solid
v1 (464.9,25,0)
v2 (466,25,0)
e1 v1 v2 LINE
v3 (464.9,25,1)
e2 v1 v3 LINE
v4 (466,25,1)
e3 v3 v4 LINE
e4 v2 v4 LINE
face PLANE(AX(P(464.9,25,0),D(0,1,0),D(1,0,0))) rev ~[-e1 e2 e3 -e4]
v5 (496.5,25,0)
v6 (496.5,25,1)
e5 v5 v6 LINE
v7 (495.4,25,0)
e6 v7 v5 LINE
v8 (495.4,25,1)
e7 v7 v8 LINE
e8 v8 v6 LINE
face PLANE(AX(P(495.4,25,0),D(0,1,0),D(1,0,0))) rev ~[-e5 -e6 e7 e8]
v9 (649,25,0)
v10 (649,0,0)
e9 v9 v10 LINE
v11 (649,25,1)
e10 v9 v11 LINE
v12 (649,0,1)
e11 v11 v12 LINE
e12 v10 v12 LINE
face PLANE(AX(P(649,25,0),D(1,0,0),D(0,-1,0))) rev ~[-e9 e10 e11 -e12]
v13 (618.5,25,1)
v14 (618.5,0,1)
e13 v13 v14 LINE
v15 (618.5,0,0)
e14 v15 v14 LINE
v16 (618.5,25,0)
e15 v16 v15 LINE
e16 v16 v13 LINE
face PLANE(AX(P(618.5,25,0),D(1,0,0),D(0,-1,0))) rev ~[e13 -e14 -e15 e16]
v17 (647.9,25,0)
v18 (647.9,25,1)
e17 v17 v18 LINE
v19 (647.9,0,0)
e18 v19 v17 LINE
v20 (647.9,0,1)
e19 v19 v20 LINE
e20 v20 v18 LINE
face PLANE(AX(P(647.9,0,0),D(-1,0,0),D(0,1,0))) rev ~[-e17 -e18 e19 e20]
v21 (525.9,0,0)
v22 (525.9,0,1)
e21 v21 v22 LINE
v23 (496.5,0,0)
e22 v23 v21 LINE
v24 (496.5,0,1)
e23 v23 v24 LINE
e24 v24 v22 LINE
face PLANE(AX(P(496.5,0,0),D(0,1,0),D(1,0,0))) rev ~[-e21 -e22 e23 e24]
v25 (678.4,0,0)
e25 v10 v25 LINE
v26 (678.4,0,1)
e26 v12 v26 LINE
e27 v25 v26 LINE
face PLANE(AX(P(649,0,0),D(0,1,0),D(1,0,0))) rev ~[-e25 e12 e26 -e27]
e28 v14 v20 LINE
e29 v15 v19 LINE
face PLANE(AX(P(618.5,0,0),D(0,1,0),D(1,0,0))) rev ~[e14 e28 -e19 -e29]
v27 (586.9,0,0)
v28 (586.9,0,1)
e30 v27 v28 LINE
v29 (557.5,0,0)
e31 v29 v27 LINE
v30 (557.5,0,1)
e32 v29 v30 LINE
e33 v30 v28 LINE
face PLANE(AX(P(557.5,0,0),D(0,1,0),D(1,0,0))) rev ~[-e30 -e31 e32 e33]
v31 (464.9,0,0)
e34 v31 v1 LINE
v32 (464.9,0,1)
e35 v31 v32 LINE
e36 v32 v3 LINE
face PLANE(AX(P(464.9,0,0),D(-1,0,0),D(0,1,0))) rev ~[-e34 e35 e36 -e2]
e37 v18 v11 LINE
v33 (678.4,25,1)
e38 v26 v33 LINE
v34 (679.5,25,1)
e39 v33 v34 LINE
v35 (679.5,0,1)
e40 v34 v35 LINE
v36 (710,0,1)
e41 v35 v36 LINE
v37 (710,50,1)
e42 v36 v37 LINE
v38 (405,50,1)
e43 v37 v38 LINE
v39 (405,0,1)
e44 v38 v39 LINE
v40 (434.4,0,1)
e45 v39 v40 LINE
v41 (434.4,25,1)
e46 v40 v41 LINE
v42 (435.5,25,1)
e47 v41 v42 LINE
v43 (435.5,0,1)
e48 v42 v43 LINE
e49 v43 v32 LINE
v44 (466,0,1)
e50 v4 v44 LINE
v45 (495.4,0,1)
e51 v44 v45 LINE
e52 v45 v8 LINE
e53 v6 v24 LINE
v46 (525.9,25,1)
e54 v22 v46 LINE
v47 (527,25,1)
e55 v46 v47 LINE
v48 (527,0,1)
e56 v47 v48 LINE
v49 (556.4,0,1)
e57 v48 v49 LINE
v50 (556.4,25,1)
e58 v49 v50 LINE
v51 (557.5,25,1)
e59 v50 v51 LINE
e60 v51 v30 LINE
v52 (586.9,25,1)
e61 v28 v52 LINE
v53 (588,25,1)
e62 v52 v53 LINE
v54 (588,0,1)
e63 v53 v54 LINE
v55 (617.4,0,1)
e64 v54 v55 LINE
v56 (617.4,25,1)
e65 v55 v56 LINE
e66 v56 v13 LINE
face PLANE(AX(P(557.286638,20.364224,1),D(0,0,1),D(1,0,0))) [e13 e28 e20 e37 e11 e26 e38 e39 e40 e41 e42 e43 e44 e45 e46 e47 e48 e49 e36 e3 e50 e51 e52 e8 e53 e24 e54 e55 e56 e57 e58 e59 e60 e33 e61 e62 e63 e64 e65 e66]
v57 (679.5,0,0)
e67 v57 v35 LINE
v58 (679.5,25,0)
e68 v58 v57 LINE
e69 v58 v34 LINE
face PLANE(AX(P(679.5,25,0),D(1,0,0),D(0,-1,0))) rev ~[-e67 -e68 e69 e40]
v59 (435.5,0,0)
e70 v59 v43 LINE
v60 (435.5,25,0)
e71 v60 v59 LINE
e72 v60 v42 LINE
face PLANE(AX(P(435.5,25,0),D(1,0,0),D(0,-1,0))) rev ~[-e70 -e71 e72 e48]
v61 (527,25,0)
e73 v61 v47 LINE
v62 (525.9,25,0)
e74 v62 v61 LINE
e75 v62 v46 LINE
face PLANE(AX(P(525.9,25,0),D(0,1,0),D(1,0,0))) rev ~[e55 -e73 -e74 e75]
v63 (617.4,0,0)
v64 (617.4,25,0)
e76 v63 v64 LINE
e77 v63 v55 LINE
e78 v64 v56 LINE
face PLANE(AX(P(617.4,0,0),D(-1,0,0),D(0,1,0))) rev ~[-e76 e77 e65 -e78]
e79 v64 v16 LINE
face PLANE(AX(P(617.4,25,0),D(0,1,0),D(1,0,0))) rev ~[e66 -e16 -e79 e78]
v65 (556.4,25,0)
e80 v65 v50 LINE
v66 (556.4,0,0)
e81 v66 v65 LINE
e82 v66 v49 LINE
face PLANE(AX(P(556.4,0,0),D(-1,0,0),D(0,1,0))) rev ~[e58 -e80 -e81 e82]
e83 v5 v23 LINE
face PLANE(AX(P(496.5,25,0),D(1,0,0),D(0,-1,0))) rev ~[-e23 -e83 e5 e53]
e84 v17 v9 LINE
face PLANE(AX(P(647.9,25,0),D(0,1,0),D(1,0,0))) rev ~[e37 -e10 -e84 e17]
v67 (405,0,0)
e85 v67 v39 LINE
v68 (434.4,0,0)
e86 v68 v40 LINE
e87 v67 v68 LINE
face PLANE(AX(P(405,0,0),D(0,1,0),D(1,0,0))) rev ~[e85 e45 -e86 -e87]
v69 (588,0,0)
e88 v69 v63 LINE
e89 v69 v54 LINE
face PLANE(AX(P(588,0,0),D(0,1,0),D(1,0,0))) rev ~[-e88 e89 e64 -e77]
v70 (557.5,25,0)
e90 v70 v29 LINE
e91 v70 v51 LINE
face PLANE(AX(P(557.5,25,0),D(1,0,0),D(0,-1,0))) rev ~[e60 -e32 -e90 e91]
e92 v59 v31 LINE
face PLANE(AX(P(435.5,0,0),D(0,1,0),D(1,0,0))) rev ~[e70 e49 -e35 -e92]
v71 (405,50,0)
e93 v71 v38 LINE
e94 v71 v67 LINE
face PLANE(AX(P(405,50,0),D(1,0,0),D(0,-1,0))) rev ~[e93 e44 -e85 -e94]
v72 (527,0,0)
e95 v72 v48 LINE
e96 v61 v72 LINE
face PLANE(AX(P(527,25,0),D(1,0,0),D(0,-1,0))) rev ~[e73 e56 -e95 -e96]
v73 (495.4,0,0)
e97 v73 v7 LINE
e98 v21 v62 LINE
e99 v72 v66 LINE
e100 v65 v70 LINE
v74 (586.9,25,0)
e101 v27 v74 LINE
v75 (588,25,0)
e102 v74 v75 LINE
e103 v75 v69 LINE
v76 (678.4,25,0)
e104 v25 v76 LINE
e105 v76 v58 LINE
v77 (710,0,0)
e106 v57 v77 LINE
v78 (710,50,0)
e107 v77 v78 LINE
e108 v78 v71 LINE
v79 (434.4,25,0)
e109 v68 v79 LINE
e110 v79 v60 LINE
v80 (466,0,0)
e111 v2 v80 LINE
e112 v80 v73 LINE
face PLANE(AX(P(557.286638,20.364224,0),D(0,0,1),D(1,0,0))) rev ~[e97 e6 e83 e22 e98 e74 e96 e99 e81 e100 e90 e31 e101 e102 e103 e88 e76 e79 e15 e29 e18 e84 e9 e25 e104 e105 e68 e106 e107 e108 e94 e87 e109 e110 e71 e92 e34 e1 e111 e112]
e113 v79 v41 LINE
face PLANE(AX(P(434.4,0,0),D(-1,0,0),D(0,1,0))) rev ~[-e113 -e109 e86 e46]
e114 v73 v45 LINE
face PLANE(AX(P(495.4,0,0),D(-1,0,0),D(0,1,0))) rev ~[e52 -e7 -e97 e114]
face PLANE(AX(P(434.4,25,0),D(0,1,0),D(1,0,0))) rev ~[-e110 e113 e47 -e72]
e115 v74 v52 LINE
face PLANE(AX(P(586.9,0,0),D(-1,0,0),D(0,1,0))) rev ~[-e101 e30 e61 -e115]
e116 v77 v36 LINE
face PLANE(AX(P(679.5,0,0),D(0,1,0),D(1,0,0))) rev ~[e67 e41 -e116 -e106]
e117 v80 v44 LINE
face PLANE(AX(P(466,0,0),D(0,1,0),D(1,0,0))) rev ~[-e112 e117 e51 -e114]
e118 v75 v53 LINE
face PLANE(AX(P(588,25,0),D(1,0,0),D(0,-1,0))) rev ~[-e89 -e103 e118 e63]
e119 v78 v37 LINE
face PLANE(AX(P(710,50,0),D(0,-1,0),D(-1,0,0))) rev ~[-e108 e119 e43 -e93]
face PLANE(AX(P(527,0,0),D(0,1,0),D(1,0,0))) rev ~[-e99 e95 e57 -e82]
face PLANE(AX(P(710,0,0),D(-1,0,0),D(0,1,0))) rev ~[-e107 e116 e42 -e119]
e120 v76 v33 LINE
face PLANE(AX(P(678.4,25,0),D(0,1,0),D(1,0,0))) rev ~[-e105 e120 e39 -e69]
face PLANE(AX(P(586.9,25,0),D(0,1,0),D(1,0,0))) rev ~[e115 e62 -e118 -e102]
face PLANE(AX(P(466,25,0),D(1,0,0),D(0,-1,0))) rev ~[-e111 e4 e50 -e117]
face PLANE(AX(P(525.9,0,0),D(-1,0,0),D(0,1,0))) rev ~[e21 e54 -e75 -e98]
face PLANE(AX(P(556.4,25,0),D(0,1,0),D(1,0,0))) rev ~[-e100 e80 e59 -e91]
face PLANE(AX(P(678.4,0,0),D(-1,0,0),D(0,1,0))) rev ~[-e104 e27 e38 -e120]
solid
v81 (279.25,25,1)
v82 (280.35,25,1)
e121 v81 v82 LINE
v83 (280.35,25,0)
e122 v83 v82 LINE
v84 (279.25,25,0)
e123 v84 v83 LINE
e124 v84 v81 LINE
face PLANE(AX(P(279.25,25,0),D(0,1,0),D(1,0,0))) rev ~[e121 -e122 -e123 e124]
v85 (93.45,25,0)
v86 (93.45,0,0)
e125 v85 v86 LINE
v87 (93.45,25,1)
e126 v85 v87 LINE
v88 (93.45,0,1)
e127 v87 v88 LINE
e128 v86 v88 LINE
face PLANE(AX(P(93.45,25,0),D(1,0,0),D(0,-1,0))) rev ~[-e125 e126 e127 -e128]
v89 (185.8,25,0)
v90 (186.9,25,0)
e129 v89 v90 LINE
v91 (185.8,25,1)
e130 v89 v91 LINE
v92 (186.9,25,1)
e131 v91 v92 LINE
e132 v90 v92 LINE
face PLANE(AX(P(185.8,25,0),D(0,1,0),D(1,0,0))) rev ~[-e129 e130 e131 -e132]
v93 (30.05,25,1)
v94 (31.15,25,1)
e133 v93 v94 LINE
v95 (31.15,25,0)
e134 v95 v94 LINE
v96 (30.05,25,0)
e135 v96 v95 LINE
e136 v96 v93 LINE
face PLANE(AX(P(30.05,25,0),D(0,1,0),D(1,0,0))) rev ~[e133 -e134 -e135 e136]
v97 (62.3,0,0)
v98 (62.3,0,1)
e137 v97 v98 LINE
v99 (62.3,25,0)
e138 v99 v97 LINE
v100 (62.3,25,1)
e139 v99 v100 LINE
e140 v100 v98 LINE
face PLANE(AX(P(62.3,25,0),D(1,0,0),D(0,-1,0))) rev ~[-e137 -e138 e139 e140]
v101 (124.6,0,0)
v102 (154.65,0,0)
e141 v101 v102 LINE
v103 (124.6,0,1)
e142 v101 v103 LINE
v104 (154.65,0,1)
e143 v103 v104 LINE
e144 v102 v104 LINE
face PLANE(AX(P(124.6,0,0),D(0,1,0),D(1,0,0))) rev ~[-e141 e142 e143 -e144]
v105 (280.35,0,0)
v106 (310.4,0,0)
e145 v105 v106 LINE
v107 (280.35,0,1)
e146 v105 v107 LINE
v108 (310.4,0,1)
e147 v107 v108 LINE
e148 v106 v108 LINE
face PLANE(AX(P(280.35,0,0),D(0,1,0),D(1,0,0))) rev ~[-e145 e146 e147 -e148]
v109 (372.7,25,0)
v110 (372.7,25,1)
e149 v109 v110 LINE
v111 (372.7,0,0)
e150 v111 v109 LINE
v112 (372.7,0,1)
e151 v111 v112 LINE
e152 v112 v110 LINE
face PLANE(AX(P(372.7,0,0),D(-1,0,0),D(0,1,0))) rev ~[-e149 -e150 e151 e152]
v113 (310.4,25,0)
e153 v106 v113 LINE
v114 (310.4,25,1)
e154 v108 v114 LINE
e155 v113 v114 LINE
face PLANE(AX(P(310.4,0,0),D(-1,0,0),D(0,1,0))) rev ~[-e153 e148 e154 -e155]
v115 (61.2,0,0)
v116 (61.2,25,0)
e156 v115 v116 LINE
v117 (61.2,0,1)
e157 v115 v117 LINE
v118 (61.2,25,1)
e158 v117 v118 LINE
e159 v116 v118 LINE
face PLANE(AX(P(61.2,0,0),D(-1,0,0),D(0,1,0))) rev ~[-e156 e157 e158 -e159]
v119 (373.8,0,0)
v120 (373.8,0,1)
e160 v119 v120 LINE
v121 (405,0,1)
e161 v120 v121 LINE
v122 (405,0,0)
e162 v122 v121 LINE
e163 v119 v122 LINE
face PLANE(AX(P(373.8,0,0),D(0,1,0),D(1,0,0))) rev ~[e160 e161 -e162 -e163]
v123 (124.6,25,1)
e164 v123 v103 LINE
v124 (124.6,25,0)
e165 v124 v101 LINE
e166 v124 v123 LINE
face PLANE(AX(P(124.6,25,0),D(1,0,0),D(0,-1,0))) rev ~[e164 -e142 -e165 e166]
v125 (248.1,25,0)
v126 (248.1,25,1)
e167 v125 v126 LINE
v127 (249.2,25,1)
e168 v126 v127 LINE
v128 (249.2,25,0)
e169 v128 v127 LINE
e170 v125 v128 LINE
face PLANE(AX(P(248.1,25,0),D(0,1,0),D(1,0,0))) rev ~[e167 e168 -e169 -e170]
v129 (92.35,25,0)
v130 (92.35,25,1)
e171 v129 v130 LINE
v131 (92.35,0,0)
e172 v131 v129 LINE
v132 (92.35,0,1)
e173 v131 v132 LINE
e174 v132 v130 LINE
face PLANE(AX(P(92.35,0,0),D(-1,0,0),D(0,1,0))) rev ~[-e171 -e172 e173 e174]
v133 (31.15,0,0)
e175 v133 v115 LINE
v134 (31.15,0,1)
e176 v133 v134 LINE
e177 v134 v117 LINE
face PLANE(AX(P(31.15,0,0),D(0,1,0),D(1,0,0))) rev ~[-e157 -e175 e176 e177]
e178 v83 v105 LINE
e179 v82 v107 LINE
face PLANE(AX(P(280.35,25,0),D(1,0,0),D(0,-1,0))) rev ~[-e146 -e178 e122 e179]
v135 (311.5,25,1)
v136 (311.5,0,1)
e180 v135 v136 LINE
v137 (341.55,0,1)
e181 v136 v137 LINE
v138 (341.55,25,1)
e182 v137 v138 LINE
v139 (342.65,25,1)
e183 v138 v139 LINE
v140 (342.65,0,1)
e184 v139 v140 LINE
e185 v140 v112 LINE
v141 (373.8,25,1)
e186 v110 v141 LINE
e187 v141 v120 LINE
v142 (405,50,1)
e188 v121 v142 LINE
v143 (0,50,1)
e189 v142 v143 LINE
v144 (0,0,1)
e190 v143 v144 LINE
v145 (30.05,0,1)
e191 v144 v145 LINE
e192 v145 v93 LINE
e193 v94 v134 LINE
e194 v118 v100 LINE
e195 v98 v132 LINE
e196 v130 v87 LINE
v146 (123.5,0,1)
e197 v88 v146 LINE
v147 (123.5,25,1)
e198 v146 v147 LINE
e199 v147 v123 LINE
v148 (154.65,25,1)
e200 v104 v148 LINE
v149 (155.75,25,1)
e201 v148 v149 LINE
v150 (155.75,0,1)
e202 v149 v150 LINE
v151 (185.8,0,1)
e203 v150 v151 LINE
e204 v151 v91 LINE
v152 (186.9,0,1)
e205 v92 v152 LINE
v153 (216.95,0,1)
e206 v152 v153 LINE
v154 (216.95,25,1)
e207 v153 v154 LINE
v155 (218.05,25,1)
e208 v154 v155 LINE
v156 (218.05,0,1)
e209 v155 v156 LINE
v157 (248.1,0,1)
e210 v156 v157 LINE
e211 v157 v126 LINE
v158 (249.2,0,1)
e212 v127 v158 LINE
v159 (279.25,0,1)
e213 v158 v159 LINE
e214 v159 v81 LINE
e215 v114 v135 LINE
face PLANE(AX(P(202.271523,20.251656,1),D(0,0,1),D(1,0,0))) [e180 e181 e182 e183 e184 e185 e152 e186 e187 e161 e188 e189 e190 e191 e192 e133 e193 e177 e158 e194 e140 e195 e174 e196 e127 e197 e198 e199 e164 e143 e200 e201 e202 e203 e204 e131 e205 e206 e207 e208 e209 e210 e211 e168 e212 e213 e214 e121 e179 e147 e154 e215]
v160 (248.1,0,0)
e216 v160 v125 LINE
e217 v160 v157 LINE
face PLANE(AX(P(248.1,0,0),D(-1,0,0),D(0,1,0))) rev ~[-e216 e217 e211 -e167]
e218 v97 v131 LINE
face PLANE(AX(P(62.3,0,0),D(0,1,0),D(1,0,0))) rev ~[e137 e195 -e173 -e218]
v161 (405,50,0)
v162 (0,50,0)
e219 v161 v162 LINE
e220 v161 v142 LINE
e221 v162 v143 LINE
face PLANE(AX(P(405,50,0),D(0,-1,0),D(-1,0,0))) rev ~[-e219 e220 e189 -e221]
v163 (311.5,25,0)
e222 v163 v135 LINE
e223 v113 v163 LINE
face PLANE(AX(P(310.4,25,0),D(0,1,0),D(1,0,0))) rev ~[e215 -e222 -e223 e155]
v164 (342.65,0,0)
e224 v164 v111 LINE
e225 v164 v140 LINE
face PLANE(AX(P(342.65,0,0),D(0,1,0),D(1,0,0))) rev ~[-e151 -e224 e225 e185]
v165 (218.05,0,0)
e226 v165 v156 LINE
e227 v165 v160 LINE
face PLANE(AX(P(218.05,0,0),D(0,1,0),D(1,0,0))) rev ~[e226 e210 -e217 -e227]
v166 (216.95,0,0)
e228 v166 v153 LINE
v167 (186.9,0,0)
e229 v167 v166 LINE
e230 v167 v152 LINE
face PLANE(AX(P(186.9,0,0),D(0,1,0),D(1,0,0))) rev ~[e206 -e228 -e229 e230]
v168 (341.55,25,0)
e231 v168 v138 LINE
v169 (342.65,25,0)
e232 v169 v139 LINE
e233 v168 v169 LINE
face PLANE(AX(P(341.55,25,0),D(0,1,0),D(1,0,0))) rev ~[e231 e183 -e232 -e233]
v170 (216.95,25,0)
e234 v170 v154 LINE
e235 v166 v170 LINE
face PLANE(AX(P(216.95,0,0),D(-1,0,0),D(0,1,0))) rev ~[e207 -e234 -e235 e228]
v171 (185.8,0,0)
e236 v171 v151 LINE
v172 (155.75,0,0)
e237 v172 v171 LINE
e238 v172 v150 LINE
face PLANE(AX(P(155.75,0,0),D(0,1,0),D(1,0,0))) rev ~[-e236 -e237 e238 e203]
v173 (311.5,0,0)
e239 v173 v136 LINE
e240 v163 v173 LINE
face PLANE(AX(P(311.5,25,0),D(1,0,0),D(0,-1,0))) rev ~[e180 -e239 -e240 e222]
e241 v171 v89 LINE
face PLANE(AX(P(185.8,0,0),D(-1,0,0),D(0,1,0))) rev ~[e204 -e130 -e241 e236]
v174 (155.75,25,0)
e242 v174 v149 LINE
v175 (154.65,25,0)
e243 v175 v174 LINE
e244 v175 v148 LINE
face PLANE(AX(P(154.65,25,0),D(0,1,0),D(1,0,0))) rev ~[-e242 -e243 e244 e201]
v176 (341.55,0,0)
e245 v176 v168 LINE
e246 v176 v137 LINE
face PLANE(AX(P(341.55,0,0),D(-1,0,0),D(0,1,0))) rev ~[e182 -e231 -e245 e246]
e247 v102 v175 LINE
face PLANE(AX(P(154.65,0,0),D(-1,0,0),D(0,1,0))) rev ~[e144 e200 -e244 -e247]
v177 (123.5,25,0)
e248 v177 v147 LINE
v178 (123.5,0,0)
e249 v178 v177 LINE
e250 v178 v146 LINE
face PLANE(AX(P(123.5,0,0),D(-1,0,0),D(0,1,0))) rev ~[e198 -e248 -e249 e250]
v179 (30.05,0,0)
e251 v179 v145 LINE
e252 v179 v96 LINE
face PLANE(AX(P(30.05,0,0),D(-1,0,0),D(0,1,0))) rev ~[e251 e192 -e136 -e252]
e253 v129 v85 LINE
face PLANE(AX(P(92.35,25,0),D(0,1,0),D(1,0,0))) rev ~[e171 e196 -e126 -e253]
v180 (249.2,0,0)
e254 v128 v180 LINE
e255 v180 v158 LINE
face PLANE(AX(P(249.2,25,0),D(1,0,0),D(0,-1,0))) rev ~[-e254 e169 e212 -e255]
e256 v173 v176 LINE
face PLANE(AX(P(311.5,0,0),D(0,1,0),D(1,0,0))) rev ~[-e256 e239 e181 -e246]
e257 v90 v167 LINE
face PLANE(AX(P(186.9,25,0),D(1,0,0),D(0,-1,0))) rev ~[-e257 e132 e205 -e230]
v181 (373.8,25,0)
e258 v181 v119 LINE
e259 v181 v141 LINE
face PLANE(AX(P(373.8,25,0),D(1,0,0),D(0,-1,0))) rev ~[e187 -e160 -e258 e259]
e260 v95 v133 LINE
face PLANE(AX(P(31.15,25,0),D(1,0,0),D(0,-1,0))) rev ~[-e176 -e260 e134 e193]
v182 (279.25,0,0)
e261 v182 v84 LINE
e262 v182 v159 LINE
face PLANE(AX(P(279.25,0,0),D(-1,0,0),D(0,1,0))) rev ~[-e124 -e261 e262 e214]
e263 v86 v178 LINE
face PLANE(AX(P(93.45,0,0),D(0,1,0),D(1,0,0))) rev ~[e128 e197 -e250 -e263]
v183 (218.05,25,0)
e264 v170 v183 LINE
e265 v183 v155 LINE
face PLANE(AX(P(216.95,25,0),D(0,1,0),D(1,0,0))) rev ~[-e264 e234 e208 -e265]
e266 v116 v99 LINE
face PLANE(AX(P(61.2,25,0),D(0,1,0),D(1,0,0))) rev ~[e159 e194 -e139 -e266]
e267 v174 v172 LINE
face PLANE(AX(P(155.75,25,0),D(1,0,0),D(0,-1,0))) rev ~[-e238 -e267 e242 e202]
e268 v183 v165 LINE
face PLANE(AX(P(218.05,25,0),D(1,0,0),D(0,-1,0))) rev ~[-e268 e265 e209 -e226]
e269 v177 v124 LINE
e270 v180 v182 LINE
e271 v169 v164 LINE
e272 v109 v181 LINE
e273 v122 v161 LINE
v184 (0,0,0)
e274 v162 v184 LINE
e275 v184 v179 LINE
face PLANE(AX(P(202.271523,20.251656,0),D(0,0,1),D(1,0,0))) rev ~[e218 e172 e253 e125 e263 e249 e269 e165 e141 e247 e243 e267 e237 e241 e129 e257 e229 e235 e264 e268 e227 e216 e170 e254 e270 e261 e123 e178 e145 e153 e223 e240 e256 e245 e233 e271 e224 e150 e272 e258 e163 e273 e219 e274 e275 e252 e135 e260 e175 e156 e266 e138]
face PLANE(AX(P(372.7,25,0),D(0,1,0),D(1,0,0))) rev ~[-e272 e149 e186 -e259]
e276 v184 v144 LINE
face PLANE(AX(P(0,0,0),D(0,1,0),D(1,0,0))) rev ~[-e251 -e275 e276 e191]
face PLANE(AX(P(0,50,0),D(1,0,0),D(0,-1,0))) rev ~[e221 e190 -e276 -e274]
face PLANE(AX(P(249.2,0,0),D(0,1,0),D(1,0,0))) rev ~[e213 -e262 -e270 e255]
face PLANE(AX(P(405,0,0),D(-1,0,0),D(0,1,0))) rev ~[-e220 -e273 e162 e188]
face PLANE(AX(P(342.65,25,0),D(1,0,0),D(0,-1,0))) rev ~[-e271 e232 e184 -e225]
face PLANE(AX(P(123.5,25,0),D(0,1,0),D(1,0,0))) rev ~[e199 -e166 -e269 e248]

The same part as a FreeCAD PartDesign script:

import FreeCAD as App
import Part
import Sketcher
from FreeCAD import Vector

doc = App.newDocument("Part")
params = doc.addObject("Spreadsheet::Sheet", "Params")
for row, (alias, value) in enumerate([
    ("sketch1_width", "405 mm"),
    ("sketch1_height", "50 mm"),
    ("sketch1_height2", "25 mm"),
    ("sketch1_width2", "1.1 mm"),
    ("sketch1_width3", "31.2 mm"),
    ("pad1_length", "1 mm"),
    ("sketch2_width", "305 mm"),
    ("sketch2_height", "50 mm"),
    ("sketch2_height2", "25 mm"),
    ("sketch2_width2", "29.4 mm"),
    ("sketch2_width3", "1.1 mm"),
    ("pad2_length", "1 mm"),
], start=1):
    params.set(f"A{row}", alias)
    params.set(f"B{row}", "=" + value)
    params.setAlias(f"B{row}", alias)

body = doc.addObject("PartDesign::Body", "Body")

# Sketch on XY plane
sketch1 = doc.addObject("Sketcher::SketchObject", "Sketch")
body.addObject(sketch1)
sketch1.AttachmentSupport = (doc.XY_Plane, [""])
sketch1.MapMode = "FlatFace"
sketch1.addGeometry(Part.LineSegment(Vector(405, 50, 0), Vector(0, 50, 0)), False)
sketch1.addGeometry(Part.LineSegment(Vector(0, 50, 0), Vector(0, 0, 0)), False)
sketch1.addGeometry(Part.LineSegment(Vector(0, 0, 0), Vector(30.1, 0, 0)), False)
sketch1.addGeometry(Part.LineSegment(Vector(30.1, 0, 0), Vector(30.1, 25, 0)), False)
sketch1.addGeometry(Part.LineSegment(Vector(30.1, 25, 0), Vector(31.1, 25, 0)), False)
sketch1.addGeometry(Part.LineSegment(Vector(31.1, 25, 0), Vector(31.1, 0, 0)), False)
sketch1.addGeometry(Part.LineSegment(Vector(31.1, 0, 0), Vector(61.2, 0, 0)), False)
sketch1.addGeometry(Part.LineSegment(Vector(61.2, 0, 0), Vector(61.2, 25, 0)), False)
sketch1.addGeometry(Part.LineSegment(Vector(61.2, 25, 0), Vector(62.3, 25, 0)), False)
sketch1.addGeometry(Part.LineSegment(Vector(62.3, 25, 0), Vector(62.3, 0, 0)), False)
sketch1.addGeometry(Part.LineSegment(Vector(62.3, 0, 0), Vector(92.3, 0, 0)), False)
sketch1.addGeometry(Part.LineSegment(Vector(92.3, 0, 0), Vector(92.3, 25, 0)), False)
sketch1.addGeometry(Part.LineSegment(Vector(92.3, 25, 0), Vector(93.5, 25, 0)), False)
sketch1.addGeometry(Part.LineSegment(Vector(93.5, 25, 0), Vector(93.5, 0, 0)), False)
sketch1.addGeometry(Part.LineSegment(Vector(93.5, 0, 0), Vector(123.5, 0, 0)), False)
sketch1.addGeometry(Part.LineSegment(Vector(123.5, 0, 0), Vector(123.5, 25, 0)), False)
sketch1.addGeometry(Part.LineSegment(Vector(123.5, 25, 0), Vector(124.6, 25, 0)), False)
sketch1.addGeometry(Part.LineSegment(Vector(124.6, 25, 0), Vector(124.6, 0, 0)), False)
sketch1.addGeometry(Part.LineSegment(Vector(124.6, 0, 0), Vector(154.7, 0, 0)), False)
sketch1.addGeometry(Part.LineSegment(Vector(154.7, 0, 0), Vector(154.7, 25, 0)), False)
sketch1.addGeometry(Part.LineSegment(Vector(154.7, 25, 0), Vector(155.8, 25, 0)), False)
sketch1.addGeometry(Part.LineSegment(Vector(155.8, 25, 0), Vector(155.8, 0, 0)), False)
sketch1.addGeometry(Part.LineSegment(Vector(155.8, 0, 0), Vector(185.8, 0, 0)), False)
sketch1.addGeometry(Part.LineSegment(Vector(185.8, 0, 0), Vector(185.8, 25, 0)), False)
sketch1.addGeometry(Part.LineSegment(Vector(185.8, 25, 0), Vector(186.9, 25, 0)), False)
sketch1.addGeometry(Part.LineSegment(Vector(186.9, 25, 0), Vector(186.9, 0, 0)), False)
sketch1.addGeometry(Part.LineSegment(Vector(186.9, 0, 0), Vector(216.9, 0, 0)), False)
sketch1.addGeometry(Part.LineSegment(Vector(216.9, 0, 0), Vector(216.9, 25, 0)), False)
sketch1.addGeometry(Part.LineSegment(Vector(216.9, 25, 0), Vector(218.1, 25, 0)), False)
sketch1.addGeometry(Part.LineSegment(Vector(218.1, 25, 0), Vector(218.1, 0, 0)), False)
sketch1.addGeometry(Part.LineSegment(Vector(218.1, 0, 0), Vector(248.1, 0, 0)), False)
sketch1.addGeometry(Part.LineSegment(Vector(248.1, 0, 0), Vector(248.1, 25, 0)), False)
sketch1.addGeometry(Part.LineSegment(Vector(248.1, 25, 0), Vector(249.2, 25, 0)), False)
sketch1.addGeometry(Part.LineSegment(Vector(249.2, 25, 0), Vector(249.2, 0, 0)), False)
sketch1.addGeometry(Part.LineSegment(Vector(249.2, 0, 0), Vector(279.2, 0, 0)), False)
sketch1.addGeometry(Part.LineSegment(Vector(279.2, 0, 0), Vector(279.2, 25, 0)), False)
sketch1.addGeometry(Part.LineSegment(Vector(279.2, 25, 0), Vector(280.4, 25, 0)), False)
sketch1.addGeometry(Part.LineSegment(Vector(280.4, 25, 0), Vector(280.4, 0, 0)), False)
sketch1.addGeometry(Part.LineSegment(Vector(280.4, 0, 0), Vector(310.4, 0, 0)), False)
sketch1.addGeometry(Part.LineSegment(Vector(310.4, 0, 0), Vector(310.4, 25, 0)), False)
sketch1.addGeometry(Part.LineSegment(Vector(310.4, 25, 0), Vector(311.5, 25, 0)), False)
sketch1.addGeometry(Part.LineSegment(Vector(311.5, 25, 0), Vector(311.5, 0, 0)), False)
sketch1.addGeometry(Part.LineSegment(Vector(311.5, 0, 0), Vector(341.6, 0, 0)), False)
sketch1.addGeometry(Part.LineSegment(Vector(341.6, 0, 0), Vector(341.6, 25, 0)), False)
sketch1.addGeometry(Part.LineSegment(Vector(341.6, 25, 0), Vector(342.6, 25, 0)), False)
sketch1.addGeometry(Part.LineSegment(Vector(342.6, 25, 0), Vector(342.6, 0, 0)), False)
sketch1.addGeometry(Part.LineSegment(Vector(342.6, 0, 0), Vector(372.7, 0, 0)), False)
sketch1.addGeometry(Part.LineSegment(Vector(372.7, 0, 0), Vector(372.7, 25, 0)), False)
sketch1.addGeometry(Part.LineSegment(Vector(372.7, 25, 0), Vector(373.8, 25, 0)), False)
sketch1.addGeometry(Part.LineSegment(Vector(373.8, 25, 0), Vector(373.8, 0, 0)), False)
sketch1.addGeometry(Part.LineSegment(Vector(373.8, 0, 0), Vector(405, 0, 0)), False)
sketch1.addGeometry(Part.LineSegment(Vector(405, 0, 0), Vector(405, 50, 0)), False)
sketch1.addConstraint(Sketcher.Constraint("Coincident", 0, 2, 1, 1))
sketch1.addConstraint(Sketcher.Constraint("Coincident", 1, 2, 2, 1))
sketch1.addConstraint(Sketcher.Constraint("Coincident", 2, 2, 3, 1))
sketch1.addConstraint(Sketcher.Constraint("Coincident", 3, 2, 4, 1))
sketch1.addConstraint(Sketcher.Constraint("Coincident", 4, 2, 5, 1))
sketch1.addConstraint(Sketcher.Constraint("Coincident", 5, 2, 6, 1))
sketch1.addConstraint(Sketcher.Constraint("Coincident", 6, 2, 7, 1))
sketch1.addConstraint(Sketcher.Constraint("Coincident", 7, 2, 8, 1))
sketch1.addConstraint(Sketcher.Constraint("Coincident", 8, 2, 9, 1))
sketch1.addConstraint(Sketcher.Constraint("Coincident", 9, 2, 10, 1))
sketch1.addConstraint(Sketcher.Constraint("Coincident", 10, 2, 11, 1))
sketch1.addConstraint(Sketcher.Constraint("Coincident", 11, 2, 12, 1))
sketch1.addConstraint(Sketcher.Constraint("Coincident", 12, 2, 13, 1))
sketch1.addConstraint(Sketcher.Constraint("Coincident", 13, 2, 14, 1))
sketch1.addConstraint(Sketcher.Constraint("Coincident", 14, 2, 15, 1))
sketch1.addConstraint(Sketcher.Constraint("Coincident", 15, 2, 16, 1))
sketch1.addConstraint(Sketcher.Constraint("Coincident", 16, 2, 17, 1))
sketch1.addConstraint(Sketcher.Constraint("Coincident", 17, 2, 18, 1))
sketch1.addConstraint(Sketcher.Constraint("Coincident", 18, 2, 19, 1))
sketch1.addConstraint(Sketcher.Constraint("Coincident", 19, 2, 20, 1))
sketch1.addConstraint(Sketcher.Constraint("Coincident", 20, 2, 21, 1))
sketch1.addConstraint(Sketcher.Constraint("Coincident", 21, 2, 22, 1))
sketch1.addConstraint(Sketcher.Constraint("Coincident", 22, 2, 23, 1))
sketch1.addConstraint(Sketcher.Constraint("Coincident", 23, 2, 24, 1))
sketch1.addConstraint(Sketcher.Constraint("Coincident", 24, 2, 25, 1))
sketch1.addConstraint(Sketcher.Constraint("Coincident", 25, 2, 26, 1))
sketch1.addConstraint(Sketcher.Constraint("Coincident", 26, 2, 27, 1))
sketch1.addConstraint(Sketcher.Constraint("Coincident", 27, 2, 28, 1))
sketch1.addConstraint(Sketcher.Constraint("Coincident", 28, 2, 29, 1))
sketch1.addConstraint(Sketcher.Constraint("Coincident", 29, 2, 30, 1))
sketch1.addConstraint(Sketcher.Constraint("Coincident", 30, 2, 31, 1))
sketch1.addConstraint(Sketcher.Constraint("Coincident", 31, 2, 32, 1))
sketch1.addConstraint(Sketcher.Constraint("Coincident", 32, 2, 33, 1))
sketch1.addConstraint(Sketcher.Constraint("Coincident", 33, 2, 34, 1))
sketch1.addConstraint(Sketcher.Constraint("Coincident", 34, 2, 35, 1))
sketch1.addConstraint(Sketcher.Constraint("Coincident", 35, 2, 36, 1))
sketch1.addConstraint(Sketcher.Constraint("Coincident", 36, 2, 37, 1))
sketch1.addConstraint(Sketcher.Constraint("Coincident", 37, 2, 38, 1))
sketch1.addConstraint(Sketcher.Constraint("Coincident", 38, 2, 39, 1))
sketch1.addConstraint(Sketcher.Constraint("Coincident", 39, 2, 40, 1))
sketch1.addConstraint(Sketcher.Constraint("Coincident", 40, 2, 41, 1))
sketch1.addConstraint(Sketcher.Constraint("Coincident", 41, 2, 42, 1))
sketch1.addConstraint(Sketcher.Constraint("Coincident", 42, 2, 43, 1))
sketch1.addConstraint(Sketcher.Constraint("Coincident", 43, 2, 44, 1))
sketch1.addConstraint(Sketcher.Constraint("Coincident", 44, 2, 45, 1))
sketch1.addConstraint(Sketcher.Constraint("Coincident", 45, 2, 46, 1))
sketch1.addConstraint(Sketcher.Constraint("Coincident", 46, 2, 47, 1))
sketch1.addConstraint(Sketcher.Constraint("Coincident", 47, 2, 48, 1))
sketch1.addConstraint(Sketcher.Constraint("Coincident", 48, 2, 49, 1))
sketch1.addConstraint(Sketcher.Constraint("Coincident", 49, 2, 50, 1))
sketch1.addConstraint(Sketcher.Constraint("Coincident", 50, 2, 51, 1))
sketch1.addConstraint(Sketcher.Constraint("Coincident", 51, 2, 0, 1))
sketch1.addConstraint(Sketcher.Constraint("Horizontal", 0))
sketch1.addConstraint(Sketcher.Constraint("Vertical", 1))
sketch1.addConstraint(Sketcher.Constraint("Horizontal", 2))
sketch1.addConstraint(Sketcher.Constraint("Vertical", 3))
sketch1.addConstraint(Sketcher.Constraint("Horizontal", 4))
sketch1.addConstraint(Sketcher.Constraint("Vertical", 5))
sketch1.addConstraint(Sketcher.Constraint("Horizontal", 6))
sketch1.addConstraint(Sketcher.Constraint("Vertical", 7))
sketch1.addConstraint(Sketcher.Constraint("Horizontal", 8))
sketch1.addConstraint(Sketcher.Constraint("Vertical", 9))
sketch1.addConstraint(Sketcher.Constraint("Horizontal", 10))
sketch1.addConstraint(Sketcher.Constraint("Vertical", 11))
sketch1.addConstraint(Sketcher.Constraint("Horizontal", 12))
sketch1.addConstraint(Sketcher.Constraint("Vertical", 13))
sketch1.addConstraint(Sketcher.Constraint("Horizontal", 14))
sketch1.addConstraint(Sketcher.Constraint("Vertical", 15))
sketch1.addConstraint(Sketcher.Constraint("Horizontal", 16))
sketch1.addConstraint(Sketcher.Constraint("Vertical", 17))
sketch1.addConstraint(Sketcher.Constraint("Horizontal", 18))
sketch1.addConstraint(Sketcher.Constraint("Vertical", 19))
sketch1.addConstraint(Sketcher.Constraint("Horizontal", 20))
sketch1.addConstraint(Sketcher.Constraint("Vertical", 21))
sketch1.addConstraint(Sketcher.Constraint("Horizontal", 22))
sketch1.addConstraint(Sketcher.Constraint("Vertical", 23))
sketch1.addConstraint(Sketcher.Constraint("Horizontal", 24))
sketch1.addConstraint(Sketcher.Constraint("Vertical", 25))
sketch1.addConstraint(Sketcher.Constraint("Horizontal", 26))
sketch1.addConstraint(Sketcher.Constraint("Vertical", 27))
sketch1.addConstraint(Sketcher.Constraint("Horizontal", 28))
sketch1.addConstraint(Sketcher.Constraint("Vertical", 29))
sketch1.addConstraint(Sketcher.Constraint("Horizontal", 30))
sketch1.addConstraint(Sketcher.Constraint("Vertical", 31))
sketch1.addConstraint(Sketcher.Constraint("Horizontal", 32))
sketch1.addConstraint(Sketcher.Constraint("Vertical", 33))
sketch1.addConstraint(Sketcher.Constraint("Horizontal", 34))
sketch1.addConstraint(Sketcher.Constraint("Vertical", 35))
sketch1.addConstraint(Sketcher.Constraint("Horizontal", 36))
sketch1.addConstraint(Sketcher.Constraint("Vertical", 37))
sketch1.addConstraint(Sketcher.Constraint("Horizontal", 38))
sketch1.addConstraint(Sketcher.Constraint("Vertical", 39))
sketch1.addConstraint(Sketcher.Constraint("Horizontal", 40))
sketch1.addConstraint(Sketcher.Constraint("Vertical", 41))
sketch1.addConstraint(Sketcher.Constraint("Horizontal", 42))
sketch1.addConstraint(Sketcher.Constraint("Vertical", 43))
sketch1.addConstraint(Sketcher.Constraint("Horizontal", 44))
sketch1.addConstraint(Sketcher.Constraint("Vertical", 45))
sketch1.addConstraint(Sketcher.Constraint("Horizontal", 46))
sketch1.addConstraint(Sketcher.Constraint("Vertical", 47))
sketch1.addConstraint(Sketcher.Constraint("Horizontal", 48))
sketch1.addConstraint(Sketcher.Constraint("Vertical", 49))
sketch1.addConstraint(Sketcher.Constraint("Horizontal", 50))
sketch1.addConstraint(Sketcher.Constraint("Vertical", 51))
sketch1.addConstraint(Sketcher.Constraint("Coincident", 1, 2, -1, 1))
sketch1.addConstraint(Sketcher.Constraint("PointOnObject", 5, 2, -1))
sketch1.addConstraint(Sketcher.Constraint("PointOnObject", 9, 2, -1))
sketch1.addConstraint(Sketcher.Constraint("PointOnObject", 13, 2, -1))
sketch1.addConstraint(Sketcher.Constraint("PointOnObject", 17, 2, -1))
sketch1.addConstraint(Sketcher.Constraint("PointOnObject", 21, 2, -1))
sketch1.addConstraint(Sketcher.Constraint("PointOnObject", 25, 2, -1))
sketch1.addConstraint(Sketcher.Constraint("PointOnObject", 29, 2, -1))
sketch1.addConstraint(Sketcher.Constraint("PointOnObject", 33, 2, -1))
sketch1.addConstraint(Sketcher.Constraint("PointOnObject", 37, 2, -1))
sketch1.addConstraint(Sketcher.Constraint("PointOnObject", 41, 2, -1))
sketch1.addConstraint(Sketcher.Constraint("PointOnObject", 45, 2, -1))
sketch1.addConstraint(Sketcher.Constraint("PointOnObject", 49, 2, -1))
sketch1.addConstraint(Sketcher.Constraint("Horizontal", 4, 2, 7, 2))
sketch1.addConstraint(Sketcher.Constraint("Horizontal", 8, 2, 11, 2))
sketch1.addConstraint(Sketcher.Constraint("Horizontal", 12, 2, 15, 2))
sketch1.addConstraint(Sketcher.Constraint("Horizontal", 16, 2, 19, 2))
sketch1.addConstraint(Sketcher.Constraint("Horizontal", 20, 2, 23, 2))
sketch1.addConstraint(Sketcher.Constraint("Horizontal", 24, 2, 27, 2))
sketch1.addConstraint(Sketcher.Constraint("Horizontal", 28, 2, 31, 2))
sketch1.addConstraint(Sketcher.Constraint("Horizontal", 32, 2, 35, 2))
sketch1.addConstraint(Sketcher.Constraint("Horizontal", 36, 2, 39, 2))
sketch1.addConstraint(Sketcher.Constraint("Horizontal", 40, 2, 43, 2))
sketch1.addConstraint(Sketcher.Constraint("Horizontal", 44, 2, 47, 2))
sketch1.addConstraint(Sketcher.Constraint("Equal", 2, 6))
sketch1.addConstraint(Sketcher.Constraint("Equal", 4, 8))
sketch1.addConstraint(Sketcher.Constraint("Equal", 6, 10))
sketch1.addConstraint(Sketcher.Constraint("Equal", 8, 12))
sketch1.addConstraint(Sketcher.Constraint("Equal", 10, 14))
sketch1.addConstraint(Sketcher.Constraint("Equal", 12, 16))
sketch1.addConstraint(Sketcher.Constraint("Equal", 14, 18))
sketch1.addConstraint(Sketcher.Constraint("Equal", 16, 20))
sketch1.addConstraint(Sketcher.Constraint("Equal", 18, 22))
sketch1.addConstraint(Sketcher.Constraint("Equal", 20, 24))
sketch1.addConstraint(Sketcher.Constraint("Equal", 22, 26))
sketch1.addConstraint(Sketcher.Constraint("Equal", 24, 28))
sketch1.addConstraint(Sketcher.Constraint("Equal", 26, 30))
sketch1.addConstraint(Sketcher.Constraint("Equal", 28, 32))
sketch1.addConstraint(Sketcher.Constraint("Equal", 30, 34))
sketch1.addConstraint(Sketcher.Constraint("Equal", 32, 36))
sketch1.addConstraint(Sketcher.Constraint("Equal", 34, 38))
sketch1.addConstraint(Sketcher.Constraint("Equal", 36, 40))
sketch1.addConstraint(Sketcher.Constraint("Equal", 38, 42))
sketch1.addConstraint(Sketcher.Constraint("Equal", 40, 44))
sketch1.addConstraint(Sketcher.Constraint("Equal", 42, 46))
sketch1.addConstraint(Sketcher.Constraint("Equal", 44, 48))
sketch1.addConstraint(Sketcher.Constraint("DistanceX", 0, 2, 0, 1, 405.0))
sketch1.addConstraint(Sketcher.Constraint("DistanceY", 1, 2, 1, 1, 50.0))
sketch1.addConstraint(Sketcher.Constraint("DistanceY", 3, 1, 3, 2, 25.0))
sketch1.addConstraint(Sketcher.Constraint("DistanceX", 4, 1, 4, 2, 1.1))
sketch1.addConstraint(Sketcher.Constraint("DistanceX", 50, 1, 50, 2, 31.2))
sketch1.setExpression("Constraints[150]", "Params.sketch1_width")
sketch1.setExpression("Constraints[151]", "Params.sketch1_height")
sketch1.setExpression("Constraints[152]", "Params.sketch1_height2")
sketch1.setExpression("Constraints[153]", "Params.sketch1_width2")
sketch1.setExpression("Constraints[154]", "Params.sketch1_width3")
pad1 = doc.addObject("PartDesign::Pad", "Pad")
body.addObject(pad1)
pad1.Profile = sketch1
pad1.setExpression("Length", "Params.pad1_length")
body2 = doc.addObject("PartDesign::Body", "Body001")

# Sketch on XY plane
sketch2 = doc.addObject("Sketcher::SketchObject", "Sketch001")
body2.addObject(sketch2)
sketch2.AttachmentSupport = (doc.getObject("XY_Plane001"), [""])
sketch2.MapMode = "FlatFace"
sketch2.addGeometry(Part.LineSegment(Vector(710, 50, 0), Vector(405, 50, 0)), False)
sketch2.addGeometry(Part.LineSegment(Vector(405, 50, 0), Vector(405, 0, 0)), False)
sketch2.addGeometry(Part.LineSegment(Vector(405, 0, 0), Vector(434.4, 0, 0)), False)
sketch2.addGeometry(Part.LineSegment(Vector(434.4, 0, 0), Vector(434.4, 25, 0)), False)
sketch2.addGeometry(Part.LineSegment(Vector(434.4, 25, 0), Vector(435.5, 25, 0)), False)
sketch2.addGeometry(Part.LineSegment(Vector(435.5, 25, 0), Vector(435.5, 0, 0)), False)
sketch2.addGeometry(Part.LineSegment(Vector(435.5, 0, 0), Vector(464.9, 0, 0)), False)
sketch2.addGeometry(Part.LineSegment(Vector(464.9, 0, 0), Vector(464.9, 25, 0)), False)
sketch2.addGeometry(Part.LineSegment(Vector(464.9, 25, 0), Vector(466, 25, 0)), False)
sketch2.addGeometry(Part.LineSegment(Vector(466, 25, 0), Vector(466, 0, 0)), False)
sketch2.addGeometry(Part.LineSegment(Vector(466, 0, 0), Vector(495.4, 0, 0)), False)
sketch2.addGeometry(Part.LineSegment(Vector(495.4, 0, 0), Vector(495.4, 25, 0)), False)
sketch2.addGeometry(Part.LineSegment(Vector(495.4, 25, 0), Vector(496.5, 25, 0)), False)
sketch2.addGeometry(Part.LineSegment(Vector(496.5, 25, 0), Vector(496.5, 0, 0)), False)
sketch2.addGeometry(Part.LineSegment(Vector(496.5, 0, 0), Vector(525.9, 0, 0)), False)
sketch2.addGeometry(Part.LineSegment(Vector(525.9, 0, 0), Vector(525.9, 25, 0)), False)
sketch2.addGeometry(Part.LineSegment(Vector(525.9, 25, 0), Vector(527, 25, 0)), False)
sketch2.addGeometry(Part.LineSegment(Vector(527, 25, 0), Vector(527, 0, 0)), False)
sketch2.addGeometry(Part.LineSegment(Vector(527, 0, 0), Vector(556.4, 0, 0)), False)
sketch2.addGeometry(Part.LineSegment(Vector(556.4, 0, 0), Vector(556.4, 25, 0)), False)
sketch2.addGeometry(Part.LineSegment(Vector(556.4, 25, 0), Vector(557.5, 25, 0)), False)
sketch2.addGeometry(Part.LineSegment(Vector(557.5, 25, 0), Vector(557.5, 0, 0)), False)
sketch2.addGeometry(Part.LineSegment(Vector(557.5, 0, 0), Vector(586.9, 0, 0)), False)
sketch2.addGeometry(Part.LineSegment(Vector(586.9, 0, 0), Vector(586.9, 25, 0)), False)
sketch2.addGeometry(Part.LineSegment(Vector(586.9, 25, 0), Vector(588, 25, 0)), False)
sketch2.addGeometry(Part.LineSegment(Vector(588, 25, 0), Vector(588, 0, 0)), False)
sketch2.addGeometry(Part.LineSegment(Vector(588, 0, 0), Vector(617.4, 0, 0)), False)
sketch2.addGeometry(Part.LineSegment(Vector(617.4, 0, 0), Vector(617.4, 25, 0)), False)
sketch2.addGeometry(Part.LineSegment(Vector(617.4, 25, 0), Vector(618.5, 25, 0)), False)
sketch2.addGeometry(Part.LineSegment(Vector(618.5, 25, 0), Vector(618.5, 0, 0)), False)
sketch2.addGeometry(Part.LineSegment(Vector(618.5, 0, 0), Vector(647.9, 0, 0)), False)
sketch2.addGeometry(Part.LineSegment(Vector(647.9, 0, 0), Vector(647.9, 25, 0)), False)
sketch2.addGeometry(Part.LineSegment(Vector(647.9, 25, 0), Vector(649, 25, 0)), False)
sketch2.addGeometry(Part.LineSegment(Vector(649, 25, 0), Vector(649, 0, 0)), False)
sketch2.addGeometry(Part.LineSegment(Vector(649, 0, 0), Vector(678.4, 0, 0)), False)
sketch2.addGeometry(Part.LineSegment(Vector(678.4, 0, 0), Vector(678.4, 25, 0)), False)
sketch2.addGeometry(Part.LineSegment(Vector(678.4, 25, 0), Vector(679.5, 25, 0)), False)
sketch2.addGeometry(Part.LineSegment(Vector(679.5, 25, 0), Vector(679.5, 0, 0)), False)
sketch2.addGeometry(Part.LineSegment(Vector(679.5, 0, 0), Vector(710, 0, 0)), False)
sketch2.addGeometry(Part.LineSegment(Vector(710, 0, 0), Vector(710, 50, 0)), False)
sketch2.addConstraint(Sketcher.Constraint("Coincident", 0, 2, 1, 1))
sketch2.addConstraint(Sketcher.Constraint("Coincident", 1, 2, 2, 1))
sketch2.addConstraint(Sketcher.Constraint("Coincident", 2, 2, 3, 1))
sketch2.addConstraint(Sketcher.Constraint("Coincident", 3, 2, 4, 1))
sketch2.addConstraint(Sketcher.Constraint("Coincident", 4, 2, 5, 1))
sketch2.addConstraint(Sketcher.Constraint("Coincident", 5, 2, 6, 1))
sketch2.addConstraint(Sketcher.Constraint("Coincident", 6, 2, 7, 1))
sketch2.addConstraint(Sketcher.Constraint("Coincident", 7, 2, 8, 1))
sketch2.addConstraint(Sketcher.Constraint("Coincident", 8, 2, 9, 1))
sketch2.addConstraint(Sketcher.Constraint("Coincident", 9, 2, 10, 1))
sketch2.addConstraint(Sketcher.Constraint("Coincident", 10, 2, 11, 1))
sketch2.addConstraint(Sketcher.Constraint("Coincident", 11, 2, 12, 1))
sketch2.addConstraint(Sketcher.Constraint("Coincident", 12, 2, 13, 1))
sketch2.addConstraint(Sketcher.Constraint("Coincident", 13, 2, 14, 1))
sketch2.addConstraint(Sketcher.Constraint("Coincident", 14, 2, 15, 1))
sketch2.addConstraint(Sketcher.Constraint("Coincident", 15, 2, 16, 1))
sketch2.addConstraint(Sketcher.Constraint("Coincident", 16, 2, 17, 1))
sketch2.addConstraint(Sketcher.Constraint("Coincident", 17, 2, 18, 1))
sketch2.addConstraint(Sketcher.Constraint("Coincident", 18, 2, 19, 1))
sketch2.addConstraint(Sketcher.Constraint("Coincident", 19, 2, 20, 1))
sketch2.addConstraint(Sketcher.Constraint("Coincident", 20, 2, 21, 1))
sketch2.addConstraint(Sketcher.Constraint("Coincident", 21, 2, 22, 1))
sketch2.addConstraint(Sketcher.Constraint("Coincident", 22, 2, 23, 1))
sketch2.addConstraint(Sketcher.Constraint("Coincident", 23, 2, 24, 1))
sketch2.addConstraint(Sketcher.Constraint("Coincident", 24, 2, 25, 1))
sketch2.addConstraint(Sketcher.Constraint("Coincident", 25, 2, 26, 1))
sketch2.addConstraint(Sketcher.Constraint("Coincident", 26, 2, 27, 1))
sketch2.addConstraint(Sketcher.Constraint("Coincident", 27, 2, 28, 1))
sketch2.addConstraint(Sketcher.Constraint("Coincident", 28, 2, 29, 1))
sketch2.addConstraint(Sketcher.Constraint("Coincident", 29, 2, 30, 1))
sketch2.addConstraint(Sketcher.Constraint("Coincident", 30, 2, 31, 1))
sketch2.addConstraint(Sketcher.Constraint("Coincident", 31, 2, 32, 1))
sketch2.addConstraint(Sketcher.Constraint("Coincident", 32, 2, 33, 1))
sketch2.addConstraint(Sketcher.Constraint("Coincident", 33, 2, 34, 1))
sketch2.addConstraint(Sketcher.Constraint("Coincident", 34, 2, 35, 1))
sketch2.addConstraint(Sketcher.Constraint("Coincident", 35, 2, 36, 1))
sketch2.addConstraint(Sketcher.Constraint("Coincident", 36, 2, 37, 1))
sketch2.addConstraint(Sketcher.Constraint("Coincident", 37, 2, 38, 1))
sketch2.addConstraint(Sketcher.Constraint("Coincident", 38, 2, 39, 1))
sketch2.addConstraint(Sketcher.Constraint("Coincident", 39, 2, 0, 1))
sketch2.addConstraint(Sketcher.Constraint("Horizontal", 0))
sketch2.addConstraint(Sketcher.Constraint("Vertical", 1))
sketch2.addConstraint(Sketcher.Constraint("Horizontal", 2))
sketch2.addConstraint(Sketcher.Constraint("Vertical", 3))
sketch2.addConstraint(Sketcher.Constraint("Horizontal", 4))
sketch2.addConstraint(Sketcher.Constraint("Vertical", 5))
sketch2.addConstraint(Sketcher.Constraint("Horizontal", 6))
sketch2.addConstraint(Sketcher.Constraint("Vertical", 7))
sketch2.addConstraint(Sketcher.Constraint("Horizontal", 8))
sketch2.addConstraint(Sketcher.Constraint("Vertical", 9))
sketch2.addConstraint(Sketcher.Constraint("Horizontal", 10))
sketch2.addConstraint(Sketcher.Constraint("Vertical", 11))
sketch2.addConstraint(Sketcher.Constraint("Horizontal", 12))
sketch2.addConstraint(Sketcher.Constraint("Vertical", 13))
sketch2.addConstraint(Sketcher.Constraint("Horizontal", 14))
sketch2.addConstraint(Sketcher.Constraint("Vertical", 15))
sketch2.addConstraint(Sketcher.Constraint("Horizontal", 16))
sketch2.addConstraint(Sketcher.Constraint("Vertical", 17))
sketch2.addConstraint(Sketcher.Constraint("Horizontal", 18))
sketch2.addConstraint(Sketcher.Constraint("Vertical", 19))
sketch2.addConstraint(Sketcher.Constraint("Horizontal", 20))
sketch2.addConstraint(Sketcher.Constraint("Vertical", 21))
sketch2.addConstraint(Sketcher.Constraint("Horizontal", 22))
sketch2.addConstraint(Sketcher.Constraint("Vertical", 23))
sketch2.addConstraint(Sketcher.Constraint("Horizontal", 24))
sketch2.addConstraint(Sketcher.Constraint("Vertical", 25))
sketch2.addConstraint(Sketcher.Constraint("Horizontal", 26))
sketch2.addConstraint(Sketcher.Constraint("Vertical", 27))
sketch2.addConstraint(Sketcher.Constraint("Horizontal", 28))
sketch2.addConstraint(Sketcher.Constraint("Vertical", 29))
sketch2.addConstraint(Sketcher.Constraint("Horizontal", 30))
sketch2.addConstraint(Sketcher.Constraint("Vertical", 31))
sketch2.addConstraint(Sketcher.Constraint("Horizontal", 32))
sketch2.addConstraint(Sketcher.Constraint("Vertical", 33))
sketch2.addConstraint(Sketcher.Constraint("Horizontal", 34))
sketch2.addConstraint(Sketcher.Constraint("Vertical", 35))
sketch2.addConstraint(Sketcher.Constraint("Horizontal", 36))
sketch2.addConstraint(Sketcher.Constraint("Vertical", 37))
sketch2.addConstraint(Sketcher.Constraint("Horizontal", 38))
sketch2.addConstraint(Sketcher.Constraint("Vertical", 39))
sketch2.addConstraint(Sketcher.Constraint("PointOnObject", 1, 2, -1))
sketch2.addConstraint(Sketcher.Constraint("PointOnObject", 5, 2, -1))
sketch2.addConstraint(Sketcher.Constraint("PointOnObject", 9, 2, -1))
sketch2.addConstraint(Sketcher.Constraint("PointOnObject", 13, 2, -1))
sketch2.addConstraint(Sketcher.Constraint("PointOnObject", 17, 2, -1))
sketch2.addConstraint(Sketcher.Constraint("PointOnObject", 21, 2, -1))
sketch2.addConstraint(Sketcher.Constraint("PointOnObject", 25, 2, -1))
sketch2.addConstraint(Sketcher.Constraint("PointOnObject", 29, 2, -1))
sketch2.addConstraint(Sketcher.Constraint("PointOnObject", 33, 2, -1))
sketch2.addConstraint(Sketcher.Constraint("PointOnObject", 37, 2, -1))
sketch2.addConstraint(Sketcher.Constraint("Horizontal", 4, 2, 7, 2))
sketch2.addConstraint(Sketcher.Constraint("Horizontal", 8, 2, 11, 2))
sketch2.addConstraint(Sketcher.Constraint("Horizontal", 12, 2, 15, 2))
sketch2.addConstraint(Sketcher.Constraint("Horizontal", 16, 2, 19, 2))
sketch2.addConstraint(Sketcher.Constraint("Horizontal", 20, 2, 23, 2))
sketch2.addConstraint(Sketcher.Constraint("Horizontal", 24, 2, 27, 2))
sketch2.addConstraint(Sketcher.Constraint("Horizontal", 28, 2, 31, 2))
sketch2.addConstraint(Sketcher.Constraint("Horizontal", 32, 2, 35, 2))
sketch2.addConstraint(Sketcher.Constraint("Equal", 2, 6))
sketch2.addConstraint(Sketcher.Constraint("Equal", 4, 8))
sketch2.addConstraint(Sketcher.Constraint("Equal", 6, 10))
sketch2.addConstraint(Sketcher.Constraint("Equal", 8, 12))
sketch2.addConstraint(Sketcher.Constraint("Equal", 10, 14))
sketch2.addConstraint(Sketcher.Constraint("Equal", 12, 16))
sketch2.addConstraint(Sketcher.Constraint("Equal", 14, 18))
sketch2.addConstraint(Sketcher.Constraint("Equal", 16, 20))
sketch2.addConstraint(Sketcher.Constraint("Equal", 18, 22))
sketch2.addConstraint(Sketcher.Constraint("Equal", 20, 24))
sketch2.addConstraint(Sketcher.Constraint("Equal", 22, 26))
sketch2.addConstraint(Sketcher.Constraint("Equal", 24, 28))
sketch2.addConstraint(Sketcher.Constraint("Equal", 26, 30))
sketch2.addConstraint(Sketcher.Constraint("Equal", 28, 32))
sketch2.addConstraint(Sketcher.Constraint("Equal", 30, 34))
sketch2.addConstraint(Sketcher.Constraint("Equal", 32, 36))
sketch2.addConstraint(Sketcher.Constraint("DistanceX", 0, 2, 0, 1, 305.0))
sketch2.addConstraint(Sketcher.Constraint("DistanceY", 1, 2, 1, 1, 50.0))
sketch2.addConstraint(Sketcher.Constraint("DistanceY", 3, 1, 3, 2, 25.0))
sketch2.addConstraint(Sketcher.Constraint("DistanceX", 2, 1, 2, 2, 29.4))
sketch2.addConstraint(Sketcher.Constraint("DistanceX", 4, 1, 4, 2, 1.1))
sketch2.addConstraint(Sketcher.Constraint("DistanceX", -1, 1, 0, 2, 405.0))
sketch2.setExpression("Constraints[114]", "Params.sketch2_width")
sketch2.setExpression("Constraints[115]", "Params.sketch2_height")
sketch2.setExpression("Constraints[116]", "Params.sketch2_height2")
sketch2.setExpression("Constraints[117]", "Params.sketch2_width2")
sketch2.setExpression("Constraints[118]", "Params.sketch2_width3")
pad2 = doc.addObject("PartDesign::Pad", "Pad001")
body2.addObject(pad2)
pad2.Profile = sketch2
pad2.setExpression("Length", "Params.pad2_length")

doc.recompute()
